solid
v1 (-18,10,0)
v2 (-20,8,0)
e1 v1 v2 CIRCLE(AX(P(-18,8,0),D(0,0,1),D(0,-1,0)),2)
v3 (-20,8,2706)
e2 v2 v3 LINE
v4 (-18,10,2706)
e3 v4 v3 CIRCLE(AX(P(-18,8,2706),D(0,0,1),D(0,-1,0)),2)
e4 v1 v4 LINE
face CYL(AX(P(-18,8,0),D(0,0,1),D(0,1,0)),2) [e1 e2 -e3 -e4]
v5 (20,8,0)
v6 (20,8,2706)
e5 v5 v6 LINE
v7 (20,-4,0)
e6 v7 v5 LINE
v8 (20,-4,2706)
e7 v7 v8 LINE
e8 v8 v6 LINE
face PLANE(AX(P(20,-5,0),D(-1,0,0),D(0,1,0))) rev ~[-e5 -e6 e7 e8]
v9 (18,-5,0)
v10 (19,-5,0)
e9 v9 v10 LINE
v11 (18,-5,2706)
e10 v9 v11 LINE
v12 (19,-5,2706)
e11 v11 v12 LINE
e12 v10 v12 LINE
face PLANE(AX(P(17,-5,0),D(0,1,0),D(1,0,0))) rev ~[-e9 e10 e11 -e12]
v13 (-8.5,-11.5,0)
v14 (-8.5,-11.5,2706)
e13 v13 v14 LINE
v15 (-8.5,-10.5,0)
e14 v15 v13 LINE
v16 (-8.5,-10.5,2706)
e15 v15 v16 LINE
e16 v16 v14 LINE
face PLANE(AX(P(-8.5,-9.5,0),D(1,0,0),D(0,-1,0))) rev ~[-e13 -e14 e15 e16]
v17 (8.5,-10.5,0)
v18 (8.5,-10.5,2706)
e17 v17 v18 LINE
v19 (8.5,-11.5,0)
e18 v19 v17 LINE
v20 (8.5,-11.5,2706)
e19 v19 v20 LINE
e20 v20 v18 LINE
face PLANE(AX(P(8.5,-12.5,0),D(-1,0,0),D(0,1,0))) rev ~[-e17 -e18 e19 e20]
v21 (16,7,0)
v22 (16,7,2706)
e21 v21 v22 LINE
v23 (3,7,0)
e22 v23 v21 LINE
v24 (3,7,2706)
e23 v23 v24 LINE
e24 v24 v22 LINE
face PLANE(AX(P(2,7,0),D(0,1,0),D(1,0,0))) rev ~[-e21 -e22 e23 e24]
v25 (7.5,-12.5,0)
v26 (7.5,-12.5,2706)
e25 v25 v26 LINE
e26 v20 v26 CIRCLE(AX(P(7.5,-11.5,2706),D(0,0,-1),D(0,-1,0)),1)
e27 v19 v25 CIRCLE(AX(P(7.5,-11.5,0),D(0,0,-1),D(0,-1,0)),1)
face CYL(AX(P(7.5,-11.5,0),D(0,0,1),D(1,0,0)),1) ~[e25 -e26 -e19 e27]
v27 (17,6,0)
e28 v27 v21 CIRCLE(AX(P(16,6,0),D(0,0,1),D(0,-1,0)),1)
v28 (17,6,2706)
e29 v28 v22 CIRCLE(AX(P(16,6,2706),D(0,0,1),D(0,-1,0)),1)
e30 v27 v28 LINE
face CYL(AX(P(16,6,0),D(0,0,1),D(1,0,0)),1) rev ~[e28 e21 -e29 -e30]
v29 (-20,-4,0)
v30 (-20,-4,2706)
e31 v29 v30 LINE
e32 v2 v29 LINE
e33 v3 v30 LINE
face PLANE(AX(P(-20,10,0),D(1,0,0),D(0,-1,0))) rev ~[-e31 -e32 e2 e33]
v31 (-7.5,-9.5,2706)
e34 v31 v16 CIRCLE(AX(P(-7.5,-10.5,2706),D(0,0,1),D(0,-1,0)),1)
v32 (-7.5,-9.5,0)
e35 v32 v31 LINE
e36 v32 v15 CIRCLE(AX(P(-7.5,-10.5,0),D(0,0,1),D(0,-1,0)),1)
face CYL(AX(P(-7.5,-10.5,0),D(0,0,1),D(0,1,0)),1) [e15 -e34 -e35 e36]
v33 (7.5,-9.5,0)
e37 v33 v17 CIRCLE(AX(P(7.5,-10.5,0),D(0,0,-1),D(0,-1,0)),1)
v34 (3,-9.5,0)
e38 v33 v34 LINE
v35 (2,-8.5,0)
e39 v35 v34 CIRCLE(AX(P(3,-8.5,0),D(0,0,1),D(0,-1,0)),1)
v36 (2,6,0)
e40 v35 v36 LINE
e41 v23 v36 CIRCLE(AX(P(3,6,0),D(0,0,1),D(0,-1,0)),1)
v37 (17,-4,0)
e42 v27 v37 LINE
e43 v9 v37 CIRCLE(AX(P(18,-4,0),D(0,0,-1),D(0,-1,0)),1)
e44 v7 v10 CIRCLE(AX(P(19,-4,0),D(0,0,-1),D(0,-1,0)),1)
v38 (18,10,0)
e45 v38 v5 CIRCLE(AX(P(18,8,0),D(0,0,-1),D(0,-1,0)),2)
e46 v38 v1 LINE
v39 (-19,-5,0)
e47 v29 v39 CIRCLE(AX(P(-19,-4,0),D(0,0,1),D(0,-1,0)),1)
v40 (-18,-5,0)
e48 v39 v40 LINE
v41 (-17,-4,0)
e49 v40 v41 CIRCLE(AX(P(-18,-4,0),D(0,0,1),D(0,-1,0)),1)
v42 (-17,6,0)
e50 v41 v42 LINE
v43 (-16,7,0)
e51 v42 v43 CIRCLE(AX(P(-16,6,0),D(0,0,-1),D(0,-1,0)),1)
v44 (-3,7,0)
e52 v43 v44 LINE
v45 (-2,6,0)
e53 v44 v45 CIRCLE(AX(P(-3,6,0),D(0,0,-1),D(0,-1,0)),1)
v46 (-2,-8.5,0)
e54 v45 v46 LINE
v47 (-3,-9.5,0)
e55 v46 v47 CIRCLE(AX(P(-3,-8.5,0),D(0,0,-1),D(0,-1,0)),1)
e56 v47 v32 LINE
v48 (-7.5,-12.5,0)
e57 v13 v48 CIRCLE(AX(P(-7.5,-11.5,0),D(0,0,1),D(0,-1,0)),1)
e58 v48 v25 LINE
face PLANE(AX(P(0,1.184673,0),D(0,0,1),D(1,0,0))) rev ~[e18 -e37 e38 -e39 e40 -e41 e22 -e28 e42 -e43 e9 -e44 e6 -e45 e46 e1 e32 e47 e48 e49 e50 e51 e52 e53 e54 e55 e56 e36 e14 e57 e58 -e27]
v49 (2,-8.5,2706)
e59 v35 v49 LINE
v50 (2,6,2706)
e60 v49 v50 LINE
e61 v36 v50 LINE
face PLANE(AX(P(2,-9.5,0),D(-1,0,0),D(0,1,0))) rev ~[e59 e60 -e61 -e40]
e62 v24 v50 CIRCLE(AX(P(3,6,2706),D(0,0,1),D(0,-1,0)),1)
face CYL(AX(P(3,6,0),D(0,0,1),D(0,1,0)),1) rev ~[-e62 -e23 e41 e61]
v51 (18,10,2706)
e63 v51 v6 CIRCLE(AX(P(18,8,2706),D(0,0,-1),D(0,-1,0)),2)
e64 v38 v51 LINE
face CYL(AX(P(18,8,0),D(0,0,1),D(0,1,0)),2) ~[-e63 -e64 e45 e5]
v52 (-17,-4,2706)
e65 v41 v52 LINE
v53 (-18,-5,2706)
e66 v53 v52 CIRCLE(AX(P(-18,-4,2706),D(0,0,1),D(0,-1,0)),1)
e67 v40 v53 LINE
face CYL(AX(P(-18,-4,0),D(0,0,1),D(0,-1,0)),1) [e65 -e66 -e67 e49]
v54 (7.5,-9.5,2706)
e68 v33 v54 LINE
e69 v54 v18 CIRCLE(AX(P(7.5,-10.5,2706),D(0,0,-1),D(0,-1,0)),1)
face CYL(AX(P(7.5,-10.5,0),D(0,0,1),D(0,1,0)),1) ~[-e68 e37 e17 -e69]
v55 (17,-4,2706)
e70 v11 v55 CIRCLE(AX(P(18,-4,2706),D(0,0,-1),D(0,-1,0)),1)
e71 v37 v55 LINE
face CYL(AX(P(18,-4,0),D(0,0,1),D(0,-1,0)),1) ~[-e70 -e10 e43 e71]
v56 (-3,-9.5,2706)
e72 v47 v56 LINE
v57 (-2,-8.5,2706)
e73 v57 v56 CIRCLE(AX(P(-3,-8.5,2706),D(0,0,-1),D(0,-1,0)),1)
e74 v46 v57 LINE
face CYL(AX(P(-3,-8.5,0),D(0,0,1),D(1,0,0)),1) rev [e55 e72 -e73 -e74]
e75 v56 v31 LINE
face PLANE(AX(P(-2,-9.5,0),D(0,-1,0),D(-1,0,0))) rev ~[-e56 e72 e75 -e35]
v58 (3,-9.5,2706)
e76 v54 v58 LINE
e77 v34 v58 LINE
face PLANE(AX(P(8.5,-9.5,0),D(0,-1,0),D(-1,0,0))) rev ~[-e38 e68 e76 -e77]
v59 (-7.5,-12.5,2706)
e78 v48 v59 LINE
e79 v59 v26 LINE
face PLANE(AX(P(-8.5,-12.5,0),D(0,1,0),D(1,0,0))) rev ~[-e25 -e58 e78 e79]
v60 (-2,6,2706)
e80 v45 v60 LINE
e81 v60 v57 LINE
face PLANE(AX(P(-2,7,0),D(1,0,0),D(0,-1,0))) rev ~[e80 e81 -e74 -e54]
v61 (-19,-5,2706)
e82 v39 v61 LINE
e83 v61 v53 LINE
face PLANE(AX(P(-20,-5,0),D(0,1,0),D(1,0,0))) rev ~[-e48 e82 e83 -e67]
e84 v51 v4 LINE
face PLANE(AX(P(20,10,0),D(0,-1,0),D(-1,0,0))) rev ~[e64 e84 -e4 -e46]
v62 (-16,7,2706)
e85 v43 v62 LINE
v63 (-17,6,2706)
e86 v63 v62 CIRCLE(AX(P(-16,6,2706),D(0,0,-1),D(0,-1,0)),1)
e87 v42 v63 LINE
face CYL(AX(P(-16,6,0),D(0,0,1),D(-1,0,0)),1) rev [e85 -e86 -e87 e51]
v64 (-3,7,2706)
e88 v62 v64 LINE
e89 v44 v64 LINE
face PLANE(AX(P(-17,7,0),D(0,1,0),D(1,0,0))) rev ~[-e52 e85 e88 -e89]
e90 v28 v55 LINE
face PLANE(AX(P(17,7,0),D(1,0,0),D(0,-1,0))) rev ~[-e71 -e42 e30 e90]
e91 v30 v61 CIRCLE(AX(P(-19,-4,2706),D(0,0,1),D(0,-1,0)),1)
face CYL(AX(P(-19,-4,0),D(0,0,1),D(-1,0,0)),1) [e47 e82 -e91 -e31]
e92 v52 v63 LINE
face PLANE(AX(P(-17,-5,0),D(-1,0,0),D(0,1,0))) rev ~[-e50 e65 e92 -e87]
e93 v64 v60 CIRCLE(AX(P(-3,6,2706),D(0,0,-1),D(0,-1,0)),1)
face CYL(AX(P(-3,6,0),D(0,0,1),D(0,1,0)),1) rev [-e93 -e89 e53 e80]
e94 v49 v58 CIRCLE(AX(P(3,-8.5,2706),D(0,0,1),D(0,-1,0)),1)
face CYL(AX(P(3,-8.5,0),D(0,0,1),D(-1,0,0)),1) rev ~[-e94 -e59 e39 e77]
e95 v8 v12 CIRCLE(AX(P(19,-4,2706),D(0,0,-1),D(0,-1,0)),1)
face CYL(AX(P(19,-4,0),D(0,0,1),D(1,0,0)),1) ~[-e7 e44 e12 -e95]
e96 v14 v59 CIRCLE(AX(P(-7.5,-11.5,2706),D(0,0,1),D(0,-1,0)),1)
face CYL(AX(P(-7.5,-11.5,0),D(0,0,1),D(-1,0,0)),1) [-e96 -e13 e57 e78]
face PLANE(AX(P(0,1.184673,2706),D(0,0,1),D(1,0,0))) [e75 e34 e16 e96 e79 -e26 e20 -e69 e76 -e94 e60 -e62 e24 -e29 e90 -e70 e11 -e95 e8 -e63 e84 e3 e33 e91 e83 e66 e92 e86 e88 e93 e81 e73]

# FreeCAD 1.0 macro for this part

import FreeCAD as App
import Part
import Sketcher
Q = App.Units.Quantity


def edges_at(feature, points):
    """Names of the edges that pass closest to the given points."""
    edges = feature.Shape.Edges
    near = lambda p: min(range(len(edges)), key=lambda i: edges[i].distToShape(Part.Vertex(*p))[0])
    return sorted({f"Edge{near(p) + 1}" for p in points})

doc = App.newDocument("Part")
body = doc.addObject("PartDesign::Body", "Body")

# Sketch on XY plane
sketch1 = body.newObject("Sketcher::SketchObject", "Sketch")
sketch1.AttachmentSupport = (doc.getObject("XY_Plane"), [""])
sketch1.MapMode = "FlatFace"
sketch1.addGeometry([
    Part.LineSegment(App.Vector(20, 10, 0), App.Vector(-20, 10, 0)),  # 0
    Part.LineSegment(App.Vector(-20, 10, 0), App.Vector(-20, -5, 0)),  # 1
    Part.LineSegment(App.Vector(-20, -5, 0), App.Vector(-17, -5, 0)),  # 2
    Part.LineSegment(App.Vector(-17, -5, 0), App.Vector(-17, 7, 0)),  # 3
    Part.LineSegment(App.Vector(-17, 7, 0), App.Vector(-2, 7, 0)),  # 4
    Part.LineSegment(App.Vector(-2, 7, 0), App.Vector(-2, -9.5, 0)),  # 5
    Part.LineSegment(App.Vector(-2, -9.5, 0), App.Vector(-8.5, -9.5, 0)),  # 6
    Part.LineSegment(App.Vector(-8.5, -9.5, 0), App.Vector(-8.5, -12.5, 0)),  # 7
    Part.LineSegment(App.Vector(-8.5, -12.5, 0), App.Vector(8.5, -12.5, 0)),  # 8
    Part.LineSegment(App.Vector(8.5, -12.5, 0), App.Vector(8.5, -9.5, 0)),  # 9
    Part.LineSegment(App.Vector(8.5, -9.5, 0), App.Vector(2, -9.5, 0)),  # 10
    Part.LineSegment(App.Vector(2, -9.5, 0), App.Vector(2, 7, 0)),  # 11
    Part.LineSegment(App.Vector(2, 7, 0), App.Vector(17, 7, 0)),  # 12
    Part.LineSegment(App.Vector(17, 7, 0), App.Vector(17, -5, 0)),  # 13
    Part.LineSegment(App.Vector(17, -5, 0), App.Vector(20, -5, 0)),  # 14
    Part.LineSegment(App.Vector(20, -5, 0), App.Vector(20, 10, 0)),  # 15
], False)
sketch1.addConstraint([
    Sketcher.Constraint("Coincident", 0, 2, 1, 1),
    Sketcher.Constraint("Coincident", 1, 2, 2, 1),
    Sketcher.Constraint("Coincident", 2, 2, 3, 1),
    Sketcher.Constraint("Coincident", 3, 2, 4, 1),
    Sketcher.Constraint("Coincident", 4, 2, 5, 1),
    Sketcher.Constraint("Coincident", 5, 2, 6, 1),
    Sketcher.Constraint("Coincident", 6, 2, 7, 1),
    Sketcher.Constraint("Coincident", 7, 2, 8, 1),
    Sketcher.Constraint("Coincident", 8, 2, 9, 1),
    Sketcher.Constraint("Coincident", 9, 2, 10, 1),
    Sketcher.Constraint("Coincident", 10, 2, 11, 1),
    Sketcher.Constraint("Coincident", 11, 2, 12, 1),
    Sketcher.Constraint("Coincident", 12, 2, 13, 1),
    Sketcher.Constraint("Coincident", 13, 2, 14, 1),
    Sketcher.Constraint("Coincident", 14, 2, 15, 1),
    Sketcher.Constraint("Coincident", 15, 2, 0, 1),
    Sketcher.Constraint("Horizontal", 0),
    Sketcher.Constraint("Vertical", 1),
    Sketcher.Constraint("Horizontal", 2),
    Sketcher.Constraint("Vertical", 3),
    Sketcher.Constraint("Horizontal", 4),
    Sketcher.Constraint("Vertical", 5),
    Sketcher.Constraint("Horizontal", 6),
    Sketcher.Constraint("Vertical", 7),
    Sketcher.Constraint("Horizontal", 8),
    Sketcher.Constraint("Vertical", 9),
    Sketcher.Constraint("Horizontal", 10),
    Sketcher.Constraint("Vertical", 11),
    Sketcher.Constraint("Horizontal", 12),
    Sketcher.Constraint("Vertical", 13),
    Sketcher.Constraint("Horizontal", 14),
    Sketcher.Constraint("Vertical", 15),
    Sketcher.Constraint("Symmetric", 6, 2, 9, 2, -2),
    Sketcher.Constraint("Symmetric", 4, 2, 11, 2, -2),
    Sketcher.Constraint("Symmetric", 2, 2, 13, 2, -2),
    Sketcher.Constraint("Equal", 2, 14),
    Sketcher.Constraint("Equal", 12, 1),
    Sketcher.Constraint("Equal", 14, 7),
    Sketcher.Constraint("DistanceX", 0, 2, 0, 1, Q("40 mm")),
    Sketcher.Constraint("DistanceX", 2, 1, 2, 2, Q("3 mm")),
    Sketcher.Constraint("DistanceX", 4, 1, 4, 2, Q("15 mm")),
    Sketcher.Constraint("DistanceX", 8, 1, 8, 2, Q("17 mm")),
    Sketcher.Constraint("DistanceY", 3, 1, 3, 2, Q("12 mm")),
    Sketcher.Constraint("DistanceY", 5, 2, 5, 1, Q("16.5 mm")),
    Sketcher.Constraint("DistanceY", -1, 1, 0, 2, Q("10 mm")),
])
pad1 = body.newObject("PartDesign::Pad", "Pad")
pad1.Profile = sketch1
pad1.Length = 2706
doc.recompute()

fillet = body.newObject("PartDesign::Fillet", "Fillet")
fillet.Base = (pad1, edges_at(pad1, [(-20, 10, 1353), (20, 10, 1353)]))
fillet.Radius = 2
doc.recompute()

fillet2 = body.newObject("PartDesign::Fillet", "Fillet001")
fillet2.Base = (fillet, edges_at(fillet, [
    (-17, -5, 1353),
    (-20, -5, 1353),
    (-17, 7, 1353),
    (2, 7, 1353),
    (17, -5, 1353),
    (20, -5, 1353),
    (8.5, -9.5, 1353),
    (8.5, -12.5, 1353),
    (-8.5, -12.5, 1353),
    (-8.5, -9.5, 1353),
    (-2, -9.5, 1353),
    (-2, 7, 1353),
    (17, 7, 1353),
    (2, -9.5, 1353),
]))
fillet2.Radius = 1

doc.recompute()
